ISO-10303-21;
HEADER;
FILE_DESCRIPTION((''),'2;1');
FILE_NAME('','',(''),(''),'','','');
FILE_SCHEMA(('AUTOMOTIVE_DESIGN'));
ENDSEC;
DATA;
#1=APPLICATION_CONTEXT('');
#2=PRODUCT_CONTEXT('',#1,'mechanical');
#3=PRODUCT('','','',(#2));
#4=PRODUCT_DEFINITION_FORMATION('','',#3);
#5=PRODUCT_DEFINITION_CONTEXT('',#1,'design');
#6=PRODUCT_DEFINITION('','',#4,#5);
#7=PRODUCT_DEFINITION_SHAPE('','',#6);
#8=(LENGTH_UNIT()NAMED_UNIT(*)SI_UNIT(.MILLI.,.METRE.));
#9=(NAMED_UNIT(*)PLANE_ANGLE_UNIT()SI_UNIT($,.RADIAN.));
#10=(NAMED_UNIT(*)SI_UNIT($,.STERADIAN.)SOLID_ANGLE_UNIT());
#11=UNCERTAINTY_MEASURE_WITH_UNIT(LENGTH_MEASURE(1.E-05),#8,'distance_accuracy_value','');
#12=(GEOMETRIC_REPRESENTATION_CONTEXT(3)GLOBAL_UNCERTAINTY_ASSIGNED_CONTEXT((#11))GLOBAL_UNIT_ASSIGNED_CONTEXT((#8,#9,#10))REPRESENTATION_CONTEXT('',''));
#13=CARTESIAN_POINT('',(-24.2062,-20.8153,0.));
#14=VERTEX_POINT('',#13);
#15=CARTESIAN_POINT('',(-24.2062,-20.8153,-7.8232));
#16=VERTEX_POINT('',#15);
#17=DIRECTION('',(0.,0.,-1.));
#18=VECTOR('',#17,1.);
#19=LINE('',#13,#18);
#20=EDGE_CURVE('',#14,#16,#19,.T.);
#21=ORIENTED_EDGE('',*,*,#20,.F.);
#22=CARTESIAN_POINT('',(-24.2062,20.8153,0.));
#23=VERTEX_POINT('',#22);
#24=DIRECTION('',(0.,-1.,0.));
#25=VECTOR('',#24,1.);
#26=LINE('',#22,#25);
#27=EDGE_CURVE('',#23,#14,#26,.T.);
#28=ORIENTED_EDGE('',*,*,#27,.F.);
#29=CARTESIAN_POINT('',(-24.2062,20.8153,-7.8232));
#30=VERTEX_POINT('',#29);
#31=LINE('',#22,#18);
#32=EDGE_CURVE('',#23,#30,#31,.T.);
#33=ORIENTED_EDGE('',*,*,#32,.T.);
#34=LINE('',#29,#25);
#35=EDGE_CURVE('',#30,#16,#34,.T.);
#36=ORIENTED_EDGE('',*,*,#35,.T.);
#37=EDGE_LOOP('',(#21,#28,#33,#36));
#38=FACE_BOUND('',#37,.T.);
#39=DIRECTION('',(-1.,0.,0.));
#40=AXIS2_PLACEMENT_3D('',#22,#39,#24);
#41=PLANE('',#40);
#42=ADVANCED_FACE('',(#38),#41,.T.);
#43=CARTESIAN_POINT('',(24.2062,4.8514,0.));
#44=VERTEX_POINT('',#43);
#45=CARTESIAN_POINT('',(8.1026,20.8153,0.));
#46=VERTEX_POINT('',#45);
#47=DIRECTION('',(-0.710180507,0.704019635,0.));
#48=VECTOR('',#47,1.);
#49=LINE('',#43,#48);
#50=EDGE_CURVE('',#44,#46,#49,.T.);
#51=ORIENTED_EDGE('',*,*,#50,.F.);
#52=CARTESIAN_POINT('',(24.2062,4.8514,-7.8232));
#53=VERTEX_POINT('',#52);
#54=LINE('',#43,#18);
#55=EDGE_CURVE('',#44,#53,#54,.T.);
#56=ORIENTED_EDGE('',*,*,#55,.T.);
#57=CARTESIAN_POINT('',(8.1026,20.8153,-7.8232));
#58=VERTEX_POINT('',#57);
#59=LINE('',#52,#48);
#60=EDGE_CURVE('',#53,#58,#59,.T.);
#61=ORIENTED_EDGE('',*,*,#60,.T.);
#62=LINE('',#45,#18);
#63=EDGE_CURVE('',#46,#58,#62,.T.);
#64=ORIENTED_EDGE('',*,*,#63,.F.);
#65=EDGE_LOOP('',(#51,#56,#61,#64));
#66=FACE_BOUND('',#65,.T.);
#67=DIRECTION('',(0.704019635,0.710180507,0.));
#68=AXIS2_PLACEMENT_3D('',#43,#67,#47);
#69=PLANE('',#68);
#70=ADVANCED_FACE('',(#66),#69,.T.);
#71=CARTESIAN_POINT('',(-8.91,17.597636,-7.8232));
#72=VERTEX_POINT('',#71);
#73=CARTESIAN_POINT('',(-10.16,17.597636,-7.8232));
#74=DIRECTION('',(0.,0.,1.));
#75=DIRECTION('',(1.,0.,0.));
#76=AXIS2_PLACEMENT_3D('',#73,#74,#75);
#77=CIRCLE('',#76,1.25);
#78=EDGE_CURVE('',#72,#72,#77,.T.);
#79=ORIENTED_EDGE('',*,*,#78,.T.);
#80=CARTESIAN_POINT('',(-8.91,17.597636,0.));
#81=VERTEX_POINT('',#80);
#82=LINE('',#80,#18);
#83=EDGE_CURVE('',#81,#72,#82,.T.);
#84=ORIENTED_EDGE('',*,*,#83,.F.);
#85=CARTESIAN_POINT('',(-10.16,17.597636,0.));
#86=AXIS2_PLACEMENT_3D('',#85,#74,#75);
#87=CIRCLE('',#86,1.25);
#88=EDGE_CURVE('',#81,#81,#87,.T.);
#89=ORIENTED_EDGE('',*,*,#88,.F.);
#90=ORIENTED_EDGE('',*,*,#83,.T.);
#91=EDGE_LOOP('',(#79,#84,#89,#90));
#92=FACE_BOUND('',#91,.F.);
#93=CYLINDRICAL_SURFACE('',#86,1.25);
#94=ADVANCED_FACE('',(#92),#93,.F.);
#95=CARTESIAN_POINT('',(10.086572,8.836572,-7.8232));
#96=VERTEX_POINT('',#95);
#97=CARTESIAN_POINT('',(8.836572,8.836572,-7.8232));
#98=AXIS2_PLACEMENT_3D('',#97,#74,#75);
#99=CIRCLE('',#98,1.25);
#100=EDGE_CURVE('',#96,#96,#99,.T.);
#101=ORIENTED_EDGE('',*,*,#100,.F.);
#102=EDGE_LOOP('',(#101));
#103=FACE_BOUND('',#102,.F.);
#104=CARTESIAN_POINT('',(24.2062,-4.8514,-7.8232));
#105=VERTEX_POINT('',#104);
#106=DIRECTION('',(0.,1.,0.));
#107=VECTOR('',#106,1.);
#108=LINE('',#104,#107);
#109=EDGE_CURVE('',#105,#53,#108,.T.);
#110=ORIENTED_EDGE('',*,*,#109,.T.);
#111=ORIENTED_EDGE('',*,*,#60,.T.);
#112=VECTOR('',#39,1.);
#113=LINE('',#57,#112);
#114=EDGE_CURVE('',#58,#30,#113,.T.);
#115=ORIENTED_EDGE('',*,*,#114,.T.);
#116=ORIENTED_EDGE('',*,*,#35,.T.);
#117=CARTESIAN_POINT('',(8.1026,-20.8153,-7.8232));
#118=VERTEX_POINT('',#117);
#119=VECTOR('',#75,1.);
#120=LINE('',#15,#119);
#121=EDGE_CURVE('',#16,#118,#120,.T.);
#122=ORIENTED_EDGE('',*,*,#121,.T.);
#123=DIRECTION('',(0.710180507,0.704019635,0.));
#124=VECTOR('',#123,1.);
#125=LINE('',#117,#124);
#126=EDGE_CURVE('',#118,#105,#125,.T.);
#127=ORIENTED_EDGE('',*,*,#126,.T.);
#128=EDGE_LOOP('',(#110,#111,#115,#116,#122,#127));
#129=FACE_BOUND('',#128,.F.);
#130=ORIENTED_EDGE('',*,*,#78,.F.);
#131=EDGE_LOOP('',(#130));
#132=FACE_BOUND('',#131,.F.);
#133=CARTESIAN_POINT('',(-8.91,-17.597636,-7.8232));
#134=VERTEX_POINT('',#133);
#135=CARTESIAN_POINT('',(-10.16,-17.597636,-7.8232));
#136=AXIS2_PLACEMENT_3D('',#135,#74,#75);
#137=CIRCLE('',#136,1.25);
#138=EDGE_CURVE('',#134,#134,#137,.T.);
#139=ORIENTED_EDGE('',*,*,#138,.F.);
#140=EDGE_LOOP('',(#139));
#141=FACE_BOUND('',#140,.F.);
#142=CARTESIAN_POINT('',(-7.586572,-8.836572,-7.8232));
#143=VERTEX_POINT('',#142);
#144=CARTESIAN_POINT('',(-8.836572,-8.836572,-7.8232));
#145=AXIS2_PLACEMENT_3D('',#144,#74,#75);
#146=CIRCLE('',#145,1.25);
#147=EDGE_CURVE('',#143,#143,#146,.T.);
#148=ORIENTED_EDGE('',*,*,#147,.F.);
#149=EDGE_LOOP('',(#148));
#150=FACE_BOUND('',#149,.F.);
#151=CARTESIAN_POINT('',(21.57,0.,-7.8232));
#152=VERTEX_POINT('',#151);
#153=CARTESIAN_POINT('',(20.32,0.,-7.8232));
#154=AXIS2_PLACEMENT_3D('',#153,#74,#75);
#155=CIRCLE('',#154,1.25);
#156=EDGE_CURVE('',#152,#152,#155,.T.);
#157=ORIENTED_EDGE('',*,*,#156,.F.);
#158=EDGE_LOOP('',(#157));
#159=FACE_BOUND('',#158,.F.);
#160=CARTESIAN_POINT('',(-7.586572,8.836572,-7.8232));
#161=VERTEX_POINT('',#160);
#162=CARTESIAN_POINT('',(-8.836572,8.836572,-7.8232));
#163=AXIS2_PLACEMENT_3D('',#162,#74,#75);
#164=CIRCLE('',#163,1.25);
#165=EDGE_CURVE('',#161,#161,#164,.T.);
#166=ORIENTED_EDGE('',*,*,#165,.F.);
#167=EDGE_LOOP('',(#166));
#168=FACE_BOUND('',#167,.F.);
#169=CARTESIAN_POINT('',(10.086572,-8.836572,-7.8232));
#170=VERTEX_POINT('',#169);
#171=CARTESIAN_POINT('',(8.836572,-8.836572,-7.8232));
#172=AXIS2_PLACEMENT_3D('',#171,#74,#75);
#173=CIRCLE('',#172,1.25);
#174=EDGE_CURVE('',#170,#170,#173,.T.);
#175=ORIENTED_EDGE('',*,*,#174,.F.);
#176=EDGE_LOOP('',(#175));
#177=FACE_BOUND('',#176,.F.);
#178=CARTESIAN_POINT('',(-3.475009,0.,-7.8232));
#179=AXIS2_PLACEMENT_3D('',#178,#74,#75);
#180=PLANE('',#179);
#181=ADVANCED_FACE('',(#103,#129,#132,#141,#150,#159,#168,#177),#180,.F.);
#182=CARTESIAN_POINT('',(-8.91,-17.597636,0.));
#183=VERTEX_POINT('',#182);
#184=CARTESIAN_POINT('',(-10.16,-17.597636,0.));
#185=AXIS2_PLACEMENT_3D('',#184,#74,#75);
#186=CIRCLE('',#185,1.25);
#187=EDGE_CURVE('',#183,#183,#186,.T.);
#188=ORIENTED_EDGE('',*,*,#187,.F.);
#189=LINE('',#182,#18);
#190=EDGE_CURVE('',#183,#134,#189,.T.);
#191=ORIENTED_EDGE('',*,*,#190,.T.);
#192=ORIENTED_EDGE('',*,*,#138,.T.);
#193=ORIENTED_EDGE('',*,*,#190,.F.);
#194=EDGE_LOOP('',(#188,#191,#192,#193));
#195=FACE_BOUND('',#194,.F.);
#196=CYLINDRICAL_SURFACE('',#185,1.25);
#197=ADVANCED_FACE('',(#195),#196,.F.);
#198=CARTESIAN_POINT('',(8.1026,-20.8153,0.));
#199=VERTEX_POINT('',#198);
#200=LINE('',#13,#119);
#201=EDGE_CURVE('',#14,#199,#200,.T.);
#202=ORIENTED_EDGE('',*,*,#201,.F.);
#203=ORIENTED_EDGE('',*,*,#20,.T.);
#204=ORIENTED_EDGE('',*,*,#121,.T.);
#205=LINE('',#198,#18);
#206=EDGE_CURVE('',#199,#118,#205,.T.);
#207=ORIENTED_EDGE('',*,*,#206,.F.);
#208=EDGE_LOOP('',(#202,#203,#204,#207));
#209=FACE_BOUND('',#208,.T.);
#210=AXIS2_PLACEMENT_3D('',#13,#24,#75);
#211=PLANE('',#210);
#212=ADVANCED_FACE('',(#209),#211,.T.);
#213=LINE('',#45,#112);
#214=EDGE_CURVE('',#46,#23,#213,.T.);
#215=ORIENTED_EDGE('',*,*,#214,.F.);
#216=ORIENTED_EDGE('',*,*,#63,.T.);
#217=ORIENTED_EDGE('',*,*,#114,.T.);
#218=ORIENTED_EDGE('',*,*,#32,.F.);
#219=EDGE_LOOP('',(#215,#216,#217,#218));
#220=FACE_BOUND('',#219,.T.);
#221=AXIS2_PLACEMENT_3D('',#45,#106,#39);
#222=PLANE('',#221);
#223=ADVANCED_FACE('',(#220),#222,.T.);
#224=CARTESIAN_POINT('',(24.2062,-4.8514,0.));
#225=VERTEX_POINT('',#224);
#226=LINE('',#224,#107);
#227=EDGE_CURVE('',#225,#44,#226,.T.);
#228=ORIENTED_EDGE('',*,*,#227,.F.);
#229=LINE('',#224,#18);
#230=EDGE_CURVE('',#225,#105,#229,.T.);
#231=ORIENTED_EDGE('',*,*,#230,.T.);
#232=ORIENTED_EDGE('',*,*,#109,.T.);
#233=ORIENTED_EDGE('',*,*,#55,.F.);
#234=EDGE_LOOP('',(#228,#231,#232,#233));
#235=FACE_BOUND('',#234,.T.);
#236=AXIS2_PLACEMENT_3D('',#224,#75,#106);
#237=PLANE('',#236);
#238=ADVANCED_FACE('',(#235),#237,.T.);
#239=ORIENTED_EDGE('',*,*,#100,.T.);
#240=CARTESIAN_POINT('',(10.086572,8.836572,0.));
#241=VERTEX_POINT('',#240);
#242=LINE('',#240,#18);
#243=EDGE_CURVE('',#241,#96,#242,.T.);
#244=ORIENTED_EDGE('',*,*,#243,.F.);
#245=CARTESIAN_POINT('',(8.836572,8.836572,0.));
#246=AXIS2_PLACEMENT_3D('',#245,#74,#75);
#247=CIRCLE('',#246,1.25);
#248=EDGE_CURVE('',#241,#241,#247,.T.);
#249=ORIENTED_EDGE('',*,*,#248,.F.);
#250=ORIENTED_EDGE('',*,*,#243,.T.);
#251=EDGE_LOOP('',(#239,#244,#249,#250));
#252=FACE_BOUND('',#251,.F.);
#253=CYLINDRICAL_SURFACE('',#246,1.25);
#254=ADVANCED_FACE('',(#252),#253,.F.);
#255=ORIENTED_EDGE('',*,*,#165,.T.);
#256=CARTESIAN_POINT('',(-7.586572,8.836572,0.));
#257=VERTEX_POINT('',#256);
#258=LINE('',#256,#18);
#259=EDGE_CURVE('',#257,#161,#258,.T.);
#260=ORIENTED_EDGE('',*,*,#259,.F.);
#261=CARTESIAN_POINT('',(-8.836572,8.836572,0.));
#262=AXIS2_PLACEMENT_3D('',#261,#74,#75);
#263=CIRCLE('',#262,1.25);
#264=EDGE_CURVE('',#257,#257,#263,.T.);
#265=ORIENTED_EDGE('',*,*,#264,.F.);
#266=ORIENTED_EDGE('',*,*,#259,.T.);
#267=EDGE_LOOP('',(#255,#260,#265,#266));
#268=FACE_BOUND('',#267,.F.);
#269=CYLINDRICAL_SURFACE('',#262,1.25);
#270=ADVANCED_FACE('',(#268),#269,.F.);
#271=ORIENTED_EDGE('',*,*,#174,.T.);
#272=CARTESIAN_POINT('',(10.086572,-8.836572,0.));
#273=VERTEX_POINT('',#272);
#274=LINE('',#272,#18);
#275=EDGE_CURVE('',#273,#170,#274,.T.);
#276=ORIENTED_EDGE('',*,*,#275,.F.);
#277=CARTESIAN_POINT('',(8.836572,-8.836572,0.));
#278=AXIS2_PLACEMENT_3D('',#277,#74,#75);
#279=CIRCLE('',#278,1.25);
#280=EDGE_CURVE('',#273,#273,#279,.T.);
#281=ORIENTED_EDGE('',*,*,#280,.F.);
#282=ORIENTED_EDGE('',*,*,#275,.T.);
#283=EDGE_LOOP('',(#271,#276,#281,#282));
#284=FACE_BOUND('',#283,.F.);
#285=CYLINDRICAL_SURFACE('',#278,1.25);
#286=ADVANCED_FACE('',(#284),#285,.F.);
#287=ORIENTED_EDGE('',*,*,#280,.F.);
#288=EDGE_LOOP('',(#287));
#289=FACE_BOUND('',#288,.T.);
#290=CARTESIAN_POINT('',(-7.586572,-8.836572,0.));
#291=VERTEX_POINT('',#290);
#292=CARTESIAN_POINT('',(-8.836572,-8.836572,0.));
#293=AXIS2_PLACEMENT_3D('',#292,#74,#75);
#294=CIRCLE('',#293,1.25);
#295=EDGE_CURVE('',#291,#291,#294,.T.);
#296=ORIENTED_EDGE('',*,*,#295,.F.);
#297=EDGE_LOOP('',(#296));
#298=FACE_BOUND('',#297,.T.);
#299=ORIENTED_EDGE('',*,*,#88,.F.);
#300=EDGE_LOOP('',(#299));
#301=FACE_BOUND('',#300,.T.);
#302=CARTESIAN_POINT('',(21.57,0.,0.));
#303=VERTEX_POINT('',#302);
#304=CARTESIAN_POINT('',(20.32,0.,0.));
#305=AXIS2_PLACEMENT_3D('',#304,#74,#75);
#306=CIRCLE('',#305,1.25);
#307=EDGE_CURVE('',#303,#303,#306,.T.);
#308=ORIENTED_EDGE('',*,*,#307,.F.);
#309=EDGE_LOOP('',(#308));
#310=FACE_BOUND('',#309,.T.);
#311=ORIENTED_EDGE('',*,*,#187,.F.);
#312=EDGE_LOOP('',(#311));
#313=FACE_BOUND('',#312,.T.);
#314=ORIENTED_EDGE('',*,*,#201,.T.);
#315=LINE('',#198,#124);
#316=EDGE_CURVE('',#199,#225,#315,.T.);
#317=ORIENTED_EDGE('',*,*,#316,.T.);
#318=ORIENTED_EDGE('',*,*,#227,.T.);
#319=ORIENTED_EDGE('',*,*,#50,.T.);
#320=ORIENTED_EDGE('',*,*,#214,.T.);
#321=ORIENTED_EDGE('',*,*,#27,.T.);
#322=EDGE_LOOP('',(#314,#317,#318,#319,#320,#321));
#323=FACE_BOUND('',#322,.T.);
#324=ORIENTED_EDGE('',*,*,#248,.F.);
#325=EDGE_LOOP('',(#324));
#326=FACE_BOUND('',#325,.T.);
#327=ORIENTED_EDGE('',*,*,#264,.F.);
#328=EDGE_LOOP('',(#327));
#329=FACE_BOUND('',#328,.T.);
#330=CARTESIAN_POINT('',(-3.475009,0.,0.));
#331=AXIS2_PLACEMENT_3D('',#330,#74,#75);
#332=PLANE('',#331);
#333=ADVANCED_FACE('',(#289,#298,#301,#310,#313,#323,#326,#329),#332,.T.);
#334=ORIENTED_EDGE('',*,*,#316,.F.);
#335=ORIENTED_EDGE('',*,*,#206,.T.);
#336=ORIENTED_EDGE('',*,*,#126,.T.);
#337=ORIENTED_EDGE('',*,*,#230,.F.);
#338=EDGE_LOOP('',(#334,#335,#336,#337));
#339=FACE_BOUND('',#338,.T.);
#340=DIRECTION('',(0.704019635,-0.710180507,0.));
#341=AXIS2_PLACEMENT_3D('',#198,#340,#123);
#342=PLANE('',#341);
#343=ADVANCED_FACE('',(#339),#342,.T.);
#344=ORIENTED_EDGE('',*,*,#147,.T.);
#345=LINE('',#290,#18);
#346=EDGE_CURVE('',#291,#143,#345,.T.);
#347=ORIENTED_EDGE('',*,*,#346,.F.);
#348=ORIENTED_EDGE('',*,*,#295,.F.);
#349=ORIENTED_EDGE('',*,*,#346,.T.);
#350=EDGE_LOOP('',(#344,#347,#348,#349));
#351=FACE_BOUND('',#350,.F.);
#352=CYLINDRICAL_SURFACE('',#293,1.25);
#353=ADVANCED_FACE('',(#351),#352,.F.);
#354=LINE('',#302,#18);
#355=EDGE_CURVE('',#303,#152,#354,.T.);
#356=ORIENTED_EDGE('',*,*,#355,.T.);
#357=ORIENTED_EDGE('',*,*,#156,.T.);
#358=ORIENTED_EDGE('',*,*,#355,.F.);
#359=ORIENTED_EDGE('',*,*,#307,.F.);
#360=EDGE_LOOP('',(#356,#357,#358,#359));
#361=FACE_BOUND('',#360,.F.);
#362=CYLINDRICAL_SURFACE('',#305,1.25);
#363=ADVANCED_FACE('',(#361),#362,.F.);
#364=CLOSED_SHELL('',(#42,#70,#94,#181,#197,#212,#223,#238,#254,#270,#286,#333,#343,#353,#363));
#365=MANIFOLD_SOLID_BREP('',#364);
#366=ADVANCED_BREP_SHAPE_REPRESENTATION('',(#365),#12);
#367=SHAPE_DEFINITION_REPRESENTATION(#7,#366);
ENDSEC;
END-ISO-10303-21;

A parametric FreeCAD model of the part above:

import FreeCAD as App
import Part
import Sketcher
from FreeCAD import Vector
Q = App.Units.Quantity


def add_polygon(sketch, points):
    """Adds a closed chain of lines whose ends are joined by coincident constraints."""
    first, n = sketch.GeometryCount, len(points)
    for a, b in zip(points, points[1:] + points[:1]):
        sketch.addGeometry(Part.LineSegment(App.Vector(*a, 0), App.Vector(*b, 0)), False)
    for i in range(n):
        sketch.addConstraint(Sketcher.Constraint("Coincident", first + i, 2, first + (i + 1) % n, 1))

doc = App.newDocument("Part")
body = doc.addObject("PartDesign::Body", "Body")

# Sketch on XY plane
sketch1 = doc.addObject("Sketcher::SketchObject", "Sketch")
body.addObject(sketch1)
sketch1.AttachmentSupport = (doc.XY_Plane, [""])
sketch1.MapMode = "FlatFace"
add_polygon(sketch1, [(-24, -21), (8, -21), (24, -5), (24, 5), (8, 21), (-24, 21)])  # lines 0-5
sketch1.addConstraint([
    Sketcher.Constraint("Horizontal", 0),
    Sketcher.Constraint("Vertical", 2),
    Sketcher.Constraint("Horizontal", 4),
    Sketcher.Constraint("Vertical", 5),
    Sketcher.Constraint("Symmetric", 0, 2, 3, 2, -1),
    Sketcher.Constraint("Equal", 1, 3),
    Sketcher.Constraint("DistanceX", 0, 1, 0, 2, Q("1.272 in")),
    Sketcher.Constraint("DistanceY", 2, 1, 2, 2, Q("0.382 in")),
    Sketcher.Constraint("DistanceY", 5, 2, 5, 1, Q("1.639 in")),
    Sketcher.Constraint("DistanceX", -1, 1, 0, 2, Q("0.319 in")),
    Sketcher.Constraint("DistanceX", -1, 1, 1, 2, Q("0.953 in")),
])
pad1 = doc.addObject("PartDesign::Pad", "Pad")
body.addObject(pad1)
pad1.Profile = sketch1
pad1.Length = Q("0.308 in")
pad1.Reversed = True

# Sketch on XY plane
sketch2 = doc.addObject("Sketcher::SketchObject", "Sketch001")
body.addObject(sketch2)
sketch2.AttachmentSupport = (doc.XY_Plane, [""])
sketch2.MapMode = "FlatFace"
sketch2.addGeometry([
    Part.Circle(Vector(-10.2, -17.6, 0), Vector(0, 0, 1), 1.2),  # 0
    Part.Circle(Vector(-10.2, 17.6, 0), Vector(0, 0, 1), 1.2),  # 1
    Part.Circle(Vector(20.3, 0, 0), Vector(0, 0, 1), 1.2),  # 2
    Part.Circle(Vector(-8.8, -8.8, 0), Vector(0, 0, 1), 1.2),  # 3
    Part.Circle(Vector(-8.8, 8.8, 0), Vector(0, 0, 1), 1.2),  # 4
    Part.Circle(Vector(8.8, 8.8, 0), Vector(0, 0, 1), 1.2),  # 5
    Part.Circle(Vector(8.8, -8.8, 0), Vector(0, 0, 1), 1.2),  # 6
], False)
sketch2.addConstraint([
    Sketcher.Constraint("Equal", 0, 1),
    Sketcher.Constraint("Equal", 1, 2),
    Sketcher.Constraint("Equal", 2, 3),
    Sketcher.Constraint("Equal", 3, 4),
    Sketcher.Constraint("Equal", 4, 5),
    Sketcher.Constraint("Equal", 5, 6),
    Sketcher.Constraint("Symmetric", 3, 3, 5, 3, -1, 1),
    Sketcher.Constraint("Symmetric", 4, 3, 6, 3, -1, 1),
    Sketcher.Constraint("Symmetric", 4, 3, 5, 3, -2),
    Sketcher.Constraint("Symmetric", 0, 3, 1, 3, -1),
    Sketcher.Constraint("PointOnObject", 2, 3, -1),
    Sketcher.Constraint("DistanceX", 0, 3, -1, 1, Q("0.4 in")),
    Sketcher.Constraint("DistanceX", -1, 1, 2, 3, Q("0.8 in")),
    Sketcher.Constraint("Diameter", 0, 2.5),
    Sketcher.Constraint("DistanceY", 3, 3, 1, 3, 26.434208),
    Sketcher.Constraint("DistanceY", 0, 3, -1, 1, 17.597636),
    Sketcher.Constraint("DistanceX", 3, 3, -1, 1, 8.836572),
])
pocket1 = doc.addObject("PartDesign::Pocket", "Pocket")
body.addObject(pocket1)
pocket1.Profile = sketch2
pocket1.Type = "ThroughAll"

doc.recompute()
